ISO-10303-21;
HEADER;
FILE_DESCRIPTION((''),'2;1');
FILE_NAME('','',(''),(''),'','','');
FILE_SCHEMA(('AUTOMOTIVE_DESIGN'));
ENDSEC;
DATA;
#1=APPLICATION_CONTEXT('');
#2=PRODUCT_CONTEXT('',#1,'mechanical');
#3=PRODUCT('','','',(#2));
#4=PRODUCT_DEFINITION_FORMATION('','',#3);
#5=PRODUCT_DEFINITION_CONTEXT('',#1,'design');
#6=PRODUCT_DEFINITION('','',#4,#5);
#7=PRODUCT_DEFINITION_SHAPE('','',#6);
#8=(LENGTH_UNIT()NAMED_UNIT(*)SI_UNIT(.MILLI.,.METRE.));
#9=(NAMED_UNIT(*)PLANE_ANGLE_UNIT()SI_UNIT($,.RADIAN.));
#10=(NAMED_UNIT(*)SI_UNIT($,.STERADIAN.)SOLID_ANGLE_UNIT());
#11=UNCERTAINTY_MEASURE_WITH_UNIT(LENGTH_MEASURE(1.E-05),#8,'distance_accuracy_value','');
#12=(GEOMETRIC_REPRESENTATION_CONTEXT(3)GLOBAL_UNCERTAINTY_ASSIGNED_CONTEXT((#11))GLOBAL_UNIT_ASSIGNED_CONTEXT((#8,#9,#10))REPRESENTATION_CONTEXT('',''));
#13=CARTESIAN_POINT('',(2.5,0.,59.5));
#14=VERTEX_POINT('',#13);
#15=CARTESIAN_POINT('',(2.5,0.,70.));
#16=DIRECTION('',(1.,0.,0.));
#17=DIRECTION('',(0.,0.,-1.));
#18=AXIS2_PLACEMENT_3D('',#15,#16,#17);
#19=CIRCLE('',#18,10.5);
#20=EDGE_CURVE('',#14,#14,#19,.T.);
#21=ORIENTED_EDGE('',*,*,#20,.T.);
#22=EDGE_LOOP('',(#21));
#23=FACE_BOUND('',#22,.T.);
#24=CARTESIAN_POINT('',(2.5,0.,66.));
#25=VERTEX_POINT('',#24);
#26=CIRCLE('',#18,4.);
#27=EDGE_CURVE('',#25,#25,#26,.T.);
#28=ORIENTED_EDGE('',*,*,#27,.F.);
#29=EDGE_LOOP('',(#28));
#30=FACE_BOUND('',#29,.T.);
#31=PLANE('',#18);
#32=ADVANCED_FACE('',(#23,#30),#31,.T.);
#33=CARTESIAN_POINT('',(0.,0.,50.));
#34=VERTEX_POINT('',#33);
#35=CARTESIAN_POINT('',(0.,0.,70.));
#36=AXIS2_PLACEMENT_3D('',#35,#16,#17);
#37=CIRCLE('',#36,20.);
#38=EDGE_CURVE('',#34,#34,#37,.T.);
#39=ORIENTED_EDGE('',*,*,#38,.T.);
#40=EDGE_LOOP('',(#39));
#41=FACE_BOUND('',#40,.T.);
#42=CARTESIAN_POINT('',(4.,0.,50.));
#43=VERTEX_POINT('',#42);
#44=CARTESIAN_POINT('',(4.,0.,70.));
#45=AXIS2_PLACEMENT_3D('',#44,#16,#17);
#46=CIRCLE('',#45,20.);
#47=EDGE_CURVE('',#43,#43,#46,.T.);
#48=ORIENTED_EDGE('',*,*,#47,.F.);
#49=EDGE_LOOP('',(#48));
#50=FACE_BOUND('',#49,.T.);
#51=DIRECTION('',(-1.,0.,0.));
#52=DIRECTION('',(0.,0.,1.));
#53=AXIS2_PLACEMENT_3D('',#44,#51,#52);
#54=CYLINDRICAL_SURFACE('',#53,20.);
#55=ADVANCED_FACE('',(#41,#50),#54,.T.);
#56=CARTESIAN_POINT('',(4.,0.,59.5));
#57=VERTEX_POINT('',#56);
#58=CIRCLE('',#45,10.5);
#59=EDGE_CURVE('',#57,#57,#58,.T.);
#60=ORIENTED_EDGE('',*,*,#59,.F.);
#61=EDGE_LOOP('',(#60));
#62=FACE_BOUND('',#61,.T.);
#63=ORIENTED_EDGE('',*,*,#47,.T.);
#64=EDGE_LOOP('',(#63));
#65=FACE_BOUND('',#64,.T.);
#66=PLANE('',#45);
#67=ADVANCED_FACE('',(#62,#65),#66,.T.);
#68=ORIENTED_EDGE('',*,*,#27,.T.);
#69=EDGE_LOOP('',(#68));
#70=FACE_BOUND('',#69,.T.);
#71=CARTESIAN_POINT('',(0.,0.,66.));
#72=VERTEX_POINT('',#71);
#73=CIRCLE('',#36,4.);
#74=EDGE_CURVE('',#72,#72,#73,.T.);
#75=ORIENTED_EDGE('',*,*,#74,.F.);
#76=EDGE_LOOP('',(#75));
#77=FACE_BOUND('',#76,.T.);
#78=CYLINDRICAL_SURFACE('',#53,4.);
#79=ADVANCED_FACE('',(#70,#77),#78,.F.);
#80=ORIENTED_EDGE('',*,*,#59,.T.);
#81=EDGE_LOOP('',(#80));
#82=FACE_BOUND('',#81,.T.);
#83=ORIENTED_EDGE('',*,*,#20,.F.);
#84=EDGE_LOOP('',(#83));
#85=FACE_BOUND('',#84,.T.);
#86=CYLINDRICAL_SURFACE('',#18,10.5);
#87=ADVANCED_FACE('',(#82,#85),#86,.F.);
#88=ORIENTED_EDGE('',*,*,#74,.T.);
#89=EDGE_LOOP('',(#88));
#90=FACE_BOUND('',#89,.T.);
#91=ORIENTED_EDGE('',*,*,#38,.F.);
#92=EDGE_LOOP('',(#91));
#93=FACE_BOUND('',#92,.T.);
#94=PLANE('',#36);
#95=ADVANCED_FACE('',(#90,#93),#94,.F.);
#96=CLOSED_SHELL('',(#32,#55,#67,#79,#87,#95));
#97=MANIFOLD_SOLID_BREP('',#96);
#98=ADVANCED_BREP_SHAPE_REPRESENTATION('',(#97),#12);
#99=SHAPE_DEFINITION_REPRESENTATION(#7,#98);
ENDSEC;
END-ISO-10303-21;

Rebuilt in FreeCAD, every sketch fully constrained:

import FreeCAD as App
import Part
import Sketcher
from FreeCAD import Vector
Q = App.Units.Quantity

doc = App.newDocument("Part")
body = doc.addObject("PartDesign::Body", "Body")

# Sketch on YZ plane
sketch1 = body.newObject("Sketcher::SketchObject", "Sketch")
sketch1.AttachmentSupport = (doc.getObject("YZ_Plane"), [""])
sketch1.MapMode = "FlatFace"
sketch1.addGeometry([
    Part.Circle(Vector(0, 70, 0), Vector(0, 0, 1), 20),
    Part.Circle(Vector(0, 70, 0), Vector(0, 0, 1), 4),
], False)
sketch1.addConstraint([
    Sketcher.Constraint("Coincident", 1, 3, 0, 3),
    Sketcher.Constraint("PointOnObject", 0, 3, -2),
    Sketcher.Constraint("Diameter", 0, Q("40 mm")),
    Sketcher.Constraint("Diameter", 1, Q("8 mm")),
    Sketcher.Constraint("DistanceY", -1, 1, 0, 3, Q("70 mm")),
])
pad1 = body.newObject("PartDesign::Pad", "Pad")
pad1.Profile = sketch1
pad1.Length = 4

# Sketch on YZ plane
sketch2 = body.newObject("Sketcher::SketchObject", "Sketch001")
sketch2.AttachmentSupport = (doc.getObject("YZ_Plane"), [""])
sketch2.MapMode = "FlatFace"
sketch2.AttachmentOffset = App.Placement(Vector(0, 0, 4), App.Rotation())
sketch2.addGeometry(Part.Circle(Vector(0, 70, 0), Vector(0, 0, 1), 10), False)
sketch2.addConstraint([
    Sketcher.Constraint("PointOnObject", 0, 3, -2),
    Sketcher.Constraint("Diameter", 0, Q("21 mm")),
    Sketcher.Constraint("DistanceY", -1, 1, 0, 3, Q("70 mm")),
])
pocket1 = body.newObject("PartDesign::Pocket", "Pocket")
pocket1.Profile = sketch2
pocket1.Length = 1.5

doc.recompute()
